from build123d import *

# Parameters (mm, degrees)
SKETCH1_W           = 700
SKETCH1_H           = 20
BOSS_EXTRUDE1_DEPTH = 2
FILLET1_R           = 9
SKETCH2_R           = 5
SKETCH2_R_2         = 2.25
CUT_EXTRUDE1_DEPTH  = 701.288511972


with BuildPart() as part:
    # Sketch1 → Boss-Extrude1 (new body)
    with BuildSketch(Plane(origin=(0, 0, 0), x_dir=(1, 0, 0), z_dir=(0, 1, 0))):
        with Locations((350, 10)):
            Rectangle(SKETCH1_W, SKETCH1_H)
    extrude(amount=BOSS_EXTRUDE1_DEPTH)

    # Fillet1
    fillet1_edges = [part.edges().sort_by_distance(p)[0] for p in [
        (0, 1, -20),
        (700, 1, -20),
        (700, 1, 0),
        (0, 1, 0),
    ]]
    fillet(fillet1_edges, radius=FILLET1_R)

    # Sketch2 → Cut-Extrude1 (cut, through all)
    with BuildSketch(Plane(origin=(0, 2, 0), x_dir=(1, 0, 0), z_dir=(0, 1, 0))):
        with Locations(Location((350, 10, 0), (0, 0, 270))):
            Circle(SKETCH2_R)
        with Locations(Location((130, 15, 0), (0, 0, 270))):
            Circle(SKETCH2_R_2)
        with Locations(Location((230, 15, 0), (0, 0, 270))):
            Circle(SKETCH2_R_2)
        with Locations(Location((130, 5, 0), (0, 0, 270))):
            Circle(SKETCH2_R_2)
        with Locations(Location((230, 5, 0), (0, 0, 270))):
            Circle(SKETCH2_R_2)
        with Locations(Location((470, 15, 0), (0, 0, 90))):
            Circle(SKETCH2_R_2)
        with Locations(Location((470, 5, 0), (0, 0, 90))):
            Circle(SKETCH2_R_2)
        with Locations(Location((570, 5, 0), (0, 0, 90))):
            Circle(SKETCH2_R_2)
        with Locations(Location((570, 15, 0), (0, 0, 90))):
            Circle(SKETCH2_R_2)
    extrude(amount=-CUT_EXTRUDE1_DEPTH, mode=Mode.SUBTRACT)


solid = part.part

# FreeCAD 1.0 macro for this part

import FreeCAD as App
import Part
import Sketcher


def edges_at(feature, points):
    """Names of the edges that pass closest to the given points."""
    edges = feature.Shape.Edges
    near = lambda p: min(range(len(edges)), key=lambda i: edges[i].distToShape(Part.Vertex(*p))[0])
    return sorted({f"Edge{near(p) + 1}" for p in points})

doc = App.newDocument("Part")
body = doc.addObject("PartDesign::Body", "Body")

# Sketch on XZ plane
sketch1 = doc.addObject("Sketcher::SketchObject", "Sketch")
body.addObject(sketch1)
sketch1.AttachmentSupport = (doc.XZ_Plane, [""])
sketch1.MapMode = "FlatFace"
sketch1.addGeometry(Part.LineSegment(App.Vector(0, -20, 0), App.Vector(0, 0, 0)), False)
sketch1.addGeometry(Part.LineSegment(App.Vector(0, 0, 0), App.Vector(700, 0, 0)), False)
sketch1.addGeometry(Part.LineSegment(App.Vector(700, 0, 0), App.Vector(700, -20, 0)), False)
sketch1.addGeometry(Part.LineSegment(App.Vector(700, -20, 0), App.Vector(0, -20, 0)), False)
sketch1.addConstraint(Sketcher.Constraint("Coincident", 0, 2, 1, 1))
sketch1.addConstraint(Sketcher.Constraint("Coincident", 1, 2, 2, 1))
sketch1.addConstraint(Sketcher.Constraint("Coincident", 2, 2, 3, 1))
sketch1.addConstraint(Sketcher.Constraint("Coincident", 3, 2, 0, 1))
sketch1.addConstraint(Sketcher.Constraint("Vertical", 0))
sketch1.addConstraint(Sketcher.Constraint("Horizontal", 1))
sketch1.addConstraint(Sketcher.Constraint("Vertical", 2))
sketch1.addConstraint(Sketcher.Constraint("Horizontal", 3))
sketch1.addConstraint(Sketcher.Constraint("Coincident", 0, 2, -1, 1))
sketch1.addConstraint(Sketcher.Constraint("DistanceX", 1, 1, 1, 2, 700.0))
sketch1.addConstraint(Sketcher.Constraint("DistanceY", 0, 1, 0, 2, 20.0))
pad1 = doc.addObject("PartDesign::Pad", "Pad")
body.addObject(pad1)
pad1.Profile = sketch1
pad1.Length = 2
pad1.Reversed = True
doc.recompute()

fillet = doc.addObject("PartDesign::Fillet", "Fillet")
body.addObject(fillet)
fillet.Base = (pad1, edges_at(pad1, [
    (0, 1, -20),
    (700, 1, -20),
    (700, 1, 0),
    (0, 1, 0),
]))
fillet.Radius = 9

# Sketch on XZ plane
sketch2 = doc.addObject("Sketcher::SketchObject", "Sketch001")
body.addObject(sketch2)
sketch2.AttachmentSupport = (doc.XZ_Plane, [""])
sketch2.MapMode = "FlatFace"
sketch2.AttachmentOffset = App.Placement(App.Vector(0, 0, -2), App.Rotation())
sketch2.addGeometry(Part.Circle(App.Vector(350, -10, 0), App.Vector(0, 0, 1), 5), False)
sketch2.addGeometry(Part.Circle(App.Vector(130, -15, 0), App.Vector(0, 0, 1), 2.2), False)
sketch2.addGeometry(Part.Circle(App.Vector(230, -15, 0), App.Vector(0, 0, 1), 2.2), False)
sketch2.addGeometry(Part.Circle(App.Vector(130, -5, 0), App.Vector(0, 0, 1), 2.2), False)
sketch2.addGeometry(Part.Circle(App.Vector(230, -5, 0), App.Vector(0, 0, 1), 2.2), False)
sketch2.addGeometry(Part.Circle(App.Vector(470, -15, 0), App.Vector(0, 0, 1), 2.2), False)
sketch2.addGeometry(Part.Circle(App.Vector(470, -5, 0), App.Vector(0, 0, 1), 2.2), False)
sketch2.addGeometry(Part.Circle(App.Vector(570, -5, 0), App.Vector(0, 0, 1), 2.2), False)
sketch2.addGeometry(Part.Circle(App.Vector(570, -15, 0), App.Vector(0, 0, 1), 2.2), False)
sketch2.addConstraint(Sketcher.Constraint("Equal", 1, 2))
sketch2.addConstraint(Sketcher.Constraint("Equal", 2, 3))
sketch2.addConstraint(Sketcher.Constraint("Equal", 3, 4))
sketch2.addConstraint(Sketcher.Constraint("Equal", 4, 5))
sketch2.addConstraint(Sketcher.Constraint("Equal", 5, 6))
sketch2.addConstraint(Sketcher.Constraint("Equal", 6, 7))
sketch2.addConstraint(Sketcher.Constraint("Equal", 7, 8))
sketch2.addConstraint(Sketcher.Constraint("Horizontal", 1, 3, 2, 3))
sketch2.addConstraint(Sketcher.Constraint("Horizontal", 3, 3, 4, 3))
sketch2.addConstraint(Sketcher.Constraint("Horizontal", 2, 3, 5, 3))
sketch2.addConstraint(Sketcher.Constraint("Horizontal", 4, 3, 6, 3))
sketch2.addConstraint(Sketcher.Constraint("Horizontal", 6, 3, 7, 3))
sketch2.addConstraint(Sketcher.Constraint("Horizontal", 5, 3, 8, 3))
sketch2.addConstraint(Sketcher.Constraint("Vertical", 1, 3, 3, 3))
sketch2.addConstraint(Sketcher.Constraint("Vertical", 2, 3, 4, 3))
sketch2.addConstraint(Sketcher.Constraint("Vertical", 5, 3, 6, 3))
sketch2.addConstraint(Sketcher.Constraint("Vertical", 7, 3, 8, 3))
sketch2.addConstraint(Sketcher.Constraint("Diameter", 0, 10.0))
sketch2.addConstraint(Sketcher.Constraint("Diameter", 1, 4.5))
sketch2.addConstraint(Sketcher.Constraint("DistanceX", -1, 1, 0, 3, 350.0))
sketch2.addConstraint(Sketcher.Constraint("DistanceY", 0, 3, -1, 1, 10.0))
sketch2.addConstraint(Sketcher.Constraint("DistanceX", -1, 1, 1, 3, 130.0))
sketch2.addConstraint(Sketcher.Constraint("DistanceY", 1, 3, -1, 1, 15.0))
sketch2.addConstraint(Sketcher.Constraint("DistanceX", -1, 1, 2, 3, 230.0))
sketch2.addConstraint(Sketcher.Constraint("DistanceY", 3, 3, -1, 1, 5.0))
sketch2.addConstraint(Sketcher.Constraint("DistanceX", -1, 1, 5, 3, 470.0))
sketch2.addConstraint(Sketcher.Constraint("DistanceX", -1, 1, 7, 3, 570.0))
pocket1 = doc.addObject("PartDesign::Pocket", "Pocket")
body.addObject(pocket1)
pocket1.Profile = sketch2
pocket1.Type = "ThroughAll"
pocket1.Reversed = True

doc.recompute()
